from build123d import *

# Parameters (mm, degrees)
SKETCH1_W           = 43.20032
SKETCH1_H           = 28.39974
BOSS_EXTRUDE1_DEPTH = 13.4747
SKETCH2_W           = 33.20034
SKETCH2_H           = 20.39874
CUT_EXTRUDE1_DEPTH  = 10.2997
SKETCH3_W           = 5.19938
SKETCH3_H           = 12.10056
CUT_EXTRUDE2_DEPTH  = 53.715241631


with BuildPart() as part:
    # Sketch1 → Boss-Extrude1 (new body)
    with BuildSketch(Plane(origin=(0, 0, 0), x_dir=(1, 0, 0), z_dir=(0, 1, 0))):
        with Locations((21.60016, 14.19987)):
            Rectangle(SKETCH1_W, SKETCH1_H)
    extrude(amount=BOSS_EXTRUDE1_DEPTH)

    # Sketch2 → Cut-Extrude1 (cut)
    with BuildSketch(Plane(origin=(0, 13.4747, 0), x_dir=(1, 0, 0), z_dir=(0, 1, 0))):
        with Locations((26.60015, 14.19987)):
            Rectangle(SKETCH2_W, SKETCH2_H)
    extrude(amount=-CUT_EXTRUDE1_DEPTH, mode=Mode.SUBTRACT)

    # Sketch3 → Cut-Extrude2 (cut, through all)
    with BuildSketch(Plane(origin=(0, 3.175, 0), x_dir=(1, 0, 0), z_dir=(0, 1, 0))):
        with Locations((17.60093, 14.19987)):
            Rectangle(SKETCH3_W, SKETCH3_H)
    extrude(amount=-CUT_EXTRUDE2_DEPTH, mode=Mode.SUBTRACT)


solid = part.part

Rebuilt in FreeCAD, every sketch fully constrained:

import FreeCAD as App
import Part
import Sketcher


def add_polygon(sketch, points):
    """Adds a closed chain of lines whose ends are joined by coincident constraints."""
    first, n = sketch.GeometryCount, len(points)
    for a, b in zip(points, points[1:] + points[:1]):
        sketch.addGeometry(Part.LineSegment(App.Vector(*a, 0), App.Vector(*b, 0)), False)
    for i in range(n):
        sketch.addConstraint(Sketcher.Constraint("Coincident", first + i, 2, first + (i + 1) % n, 1))

doc = App.newDocument("Part")
body = doc.addObject("PartDesign::Body", "Body")

# Sketch on XZ plane
sketch1 = body.newObject("Sketcher::SketchObject", "Sketch")
sketch1.AttachmentSupport = (doc.getObject("XZ_Plane"), [""])
sketch1.MapMode = "FlatFace"
add_polygon(sketch1, [(0, -28), (0, 0), (43, 0), (43, -28)])  # lines 0-3
sketch1.addConstraint(Sketcher.Constraint("Vertical", 0))
sketch1.addConstraint(Sketcher.Constraint("Horizontal", 1))
sketch1.addConstraint(Sketcher.Constraint("Vertical", 2))
sketch1.addConstraint(Sketcher.Constraint("Horizontal", 3))
sketch1.addConstraint(Sketcher.Constraint("Coincident", 0, 2, -1, 1))
sketch1.addConstraint(Sketcher.Constraint("DistanceX", 1, 1, 1, 2, 43.20032))
sketch1.addConstraint(Sketcher.Constraint("DistanceY", 0, 1, 0, 2, 28.39974))
pad1 = body.newObject("PartDesign::Pad", "Pad")
pad1.Profile = sketch1
pad1.Length = 13.4747
pad1.Reversed = True

# Sketch on XZ plane
sketch2 = body.newObject("Sketcher::SketchObject", "Sketch001")
sketch2.AttachmentSupport = (doc.getObject("XZ_Plane"), [""])
sketch2.MapMode = "FlatFace"
sketch2.AttachmentOffset = App.Placement(App.Vector(0, 0, -13.4747), App.Rotation())
add_polygon(sketch2, [(10, -24), (10, -4), (43, -4), (43, -24)])  # lines 0-3
sketch2.addConstraint(Sketcher.Constraint("Vertical", 0))
sketch2.addConstraint(Sketcher.Constraint("Horizontal", 1))
sketch2.addConstraint(Sketcher.Constraint("Vertical", 2))
sketch2.addConstraint(Sketcher.Constraint("Horizontal", 3))
sketch2.addConstraint(Sketcher.Constraint("DistanceX", 1, 1, 1, 2, 33.20034))
sketch2.addConstraint(Sketcher.Constraint("DistanceY", 0, 1, 0, 2, 20.39874))
sketch2.addConstraint(Sketcher.Constraint("DistanceY", 0, 2, -1, 1, 4.0005))
sketch2.addConstraint(Sketcher.Constraint("DistanceX", -1, 1, 0, 2, 9.99998))
pocket1 = body.newObject("PartDesign::Pocket", "Pocket")
pocket1.Profile = sketch2
pocket1.Length = 10.2997
pocket1.Reversed = True

# Sketch on XZ plane
sketch3 = body.newObject("Sketcher::SketchObject", "Sketch002")
sketch3.AttachmentSupport = (doc.getObject("XZ_Plane"), [""])
sketch3.MapMode = "FlatFace"
sketch3.AttachmentOffset = App.Placement(App.Vector(0, 0, -3.175), App.Rotation())
add_polygon(sketch3, [(15, -20), (15, -8), (20, -8), (20, -20)])  # lines 0-3
sketch3.addConstraint(Sketcher.Constraint("Vertical", 0))
sketch3.addConstraint(Sketcher.Constraint("Horizontal", 1))
sketch3.addConstraint(Sketcher.Constraint("Vertical", 2))
sketch3.addConstraint(Sketcher.Constraint("Horizontal", 3))
sketch3.addConstraint(Sketcher.Constraint("DistanceX", 1, 1, 1, 2, 5.19938))
sketch3.addConstraint(Sketcher.Constraint("DistanceY", 0, 1, 0, 2, 12.10056))
sketch3.addConstraint(Sketcher.Constraint("DistanceX", -1, 1, 0, 2, 15.00124))
sketch3.addConstraint(Sketcher.Constraint("DistanceY", 0, 2, -1, 1, 8.14959))
pocket2 = body.newObject("PartDesign::Pocket", "Pocket001")
pocket2.Profile = sketch3
pocket2.Type = "ThroughAll"
pocket2.Reversed = True

doc.recompute()
